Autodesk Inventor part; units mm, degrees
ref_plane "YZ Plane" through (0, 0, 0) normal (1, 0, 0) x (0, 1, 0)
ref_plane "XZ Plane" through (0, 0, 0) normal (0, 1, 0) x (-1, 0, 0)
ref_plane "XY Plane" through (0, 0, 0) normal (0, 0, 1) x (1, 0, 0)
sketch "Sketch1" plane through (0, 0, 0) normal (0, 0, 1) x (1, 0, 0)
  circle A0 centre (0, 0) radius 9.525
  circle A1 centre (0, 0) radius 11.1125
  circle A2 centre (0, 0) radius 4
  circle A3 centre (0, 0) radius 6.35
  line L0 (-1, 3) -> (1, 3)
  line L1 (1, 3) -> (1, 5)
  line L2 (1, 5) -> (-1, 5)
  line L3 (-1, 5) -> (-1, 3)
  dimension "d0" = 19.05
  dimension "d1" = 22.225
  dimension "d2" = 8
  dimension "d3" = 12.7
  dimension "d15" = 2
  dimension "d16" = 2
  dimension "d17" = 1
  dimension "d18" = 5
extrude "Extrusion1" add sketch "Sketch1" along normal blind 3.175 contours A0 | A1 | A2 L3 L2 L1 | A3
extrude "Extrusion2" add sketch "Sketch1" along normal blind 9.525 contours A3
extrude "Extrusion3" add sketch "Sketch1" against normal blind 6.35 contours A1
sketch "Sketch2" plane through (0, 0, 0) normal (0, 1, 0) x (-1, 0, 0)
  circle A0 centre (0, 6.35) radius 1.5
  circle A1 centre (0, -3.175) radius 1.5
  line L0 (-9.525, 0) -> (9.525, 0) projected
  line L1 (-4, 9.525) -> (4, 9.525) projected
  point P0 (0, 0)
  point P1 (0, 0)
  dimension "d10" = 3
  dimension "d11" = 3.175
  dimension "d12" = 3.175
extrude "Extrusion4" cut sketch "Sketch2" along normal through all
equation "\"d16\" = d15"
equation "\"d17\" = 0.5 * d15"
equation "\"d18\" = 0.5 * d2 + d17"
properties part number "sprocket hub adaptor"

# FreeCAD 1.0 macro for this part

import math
import FreeCAD as App
import Part
import Sketcher

V = App.Vector
Q = App.Units.Quantity

doc = App.newDocument("Part")
body = doc.addObject("PartDesign::Body", "Body")

sketch1 = body.newObject("Sketcher::SketchObject", "Sketch")
sketch1.AttachmentSupport = (doc.getObject("XY_Plane"), [""])
sketch1.MapMode = "FlatFace"
sketch1.addGeometry([
    Part.Circle(V(0, 0, 0), V(0, 0, 1), 11.1),
    Part.Circle(V(0, 0, 0), V(0, 0, 1), 4),
], False)
sketch1.addConstraint([
    Sketcher.Constraint("Coincident", 0, 3, -1, 1),
    Sketcher.Constraint("Coincident", 1, 3, -1, 1),
    Sketcher.Constraint("Diameter", 0, Q("0.875 in")),
    Sketcher.Constraint("Diameter", 1, 8.0),
])
pad1 = body.newObject("PartDesign::Pad", "Pad")
pad1.Profile = sketch1
pad1.Length = Q("0.125 in")

sketch2 = body.newObject("Sketcher::SketchObject", "Sketch001")
sketch2.AttachmentSupport = (doc.getObject("XY_Plane"), [""])
sketch2.MapMode = "FlatFace"
sketch2.addGeometry([
    Part.Circle(V(0, 0, 0), V(0, 0, 1), 6.3),
    Part.ArcOfCircle(Part.Circle(V(0, 0, 0), V(0, 0, 1), 4), math.radians(104), math.radians(436)),
    Part.LineSegment(V(-1, 3.9, 0), V(-1, 5, 0)),
    Part.LineSegment(V(-1, 5, 0), V(1, 5, 0)),
    Part.LineSegment(V(1, 5, 0), V(1, 3.9, 0)),
], False)
sketch2.addConstraint([
    Sketcher.Constraint("Coincident", 1, 1, 2, 1),
    Sketcher.Constraint("Coincident", 2, 2, 3, 1),
    Sketcher.Constraint("Coincident", 3, 2, 4, 1),
    Sketcher.Constraint("Coincident", 4, 2, 1, 2),
    Sketcher.Constraint("Vertical", 2),
    Sketcher.Constraint("Horizontal", 3),
    Sketcher.Constraint("Vertical", 4),
    Sketcher.Constraint("Coincident", 0, 3, -1, 1),
    Sketcher.Constraint("Coincident", 1, 3, -1, 1),
    Sketcher.Constraint("Horizontal", 1, 1, 4, 2),
    Sketcher.Constraint("Diameter", 0, Q("0.5 in")),
    Sketcher.Constraint("Radius", 1, 4.0),
    Sketcher.Constraint("DistanceX", 3, 1, 3, 2, 2.0),
    Sketcher.Constraint("DistanceY", -1, 1, 2, 2, 5.0),
])
pad2 = body.newObject("PartDesign::Pad", "Pad001")
pad2.Profile = sketch2
pad2.Length = Q("0.375 in")

sketch3 = body.newObject("Sketcher::SketchObject", "Sketch002")
sketch3.AttachmentSupport = (doc.getObject("XY_Plane"), [""])
sketch3.MapMode = "FlatFace"
sketch3.addGeometry([
    Part.Circle(V(0, 0, 0), V(0, 0, 1), 11),
    Part.Circle(V(0, 0, 0), V(0, 0, 1), 10),
], False)
sketch3.addConstraint([
    Sketcher.Constraint("Coincident", 0, 3, -1, 1),
    Sketcher.Constraint("Coincident", 1, 3, -1, 1),
    Sketcher.Constraint("Diameter", 1, Q("0.75 in")),
    Sketcher.Constraint("Diameter", 0, Q("0.875 in")),
])
pad3 = body.newObject("PartDesign::Pad", "Pad002")
pad3.Profile = sketch3
pad3.Length = Q("0.25 in")
pad3.Reversed = True

sketch4 = body.newObject("Sketcher::SketchObject", "Sketch003")
sketch4.AttachmentSupport = (doc.getObject("XZ_Plane"), [""])
sketch4.MapMode = "FlatFace"
sketch4.addGeometry([
    Part.Circle(V(0, 6.3, 0), V(0, 0, 1), 1.5),
    Part.Circle(V(0, -3.2, 0), V(0, 0, 1), 1.5),
], False)
sketch4.addConstraint([
    Sketcher.Constraint("Equal", 0, 1),
    Sketcher.Constraint("PointOnObject", 0, 3, -2),
    Sketcher.Constraint("PointOnObject", 1, 3, -2),
    Sketcher.Constraint("Diameter", 0, Q("0.1181 in")),
    Sketcher.Constraint("DistanceY", 1, 3, -1, 1, Q("0.125 in")),
    Sketcher.Constraint("DistanceY", -1, 1, 0, 3, Q("0.25 in")),
])
pocket1 = body.newObject("PartDesign::Pocket", "Pocket")
pocket1.Profile = sketch4
pocket1.Type = "ThroughAll"

doc.recompute()
